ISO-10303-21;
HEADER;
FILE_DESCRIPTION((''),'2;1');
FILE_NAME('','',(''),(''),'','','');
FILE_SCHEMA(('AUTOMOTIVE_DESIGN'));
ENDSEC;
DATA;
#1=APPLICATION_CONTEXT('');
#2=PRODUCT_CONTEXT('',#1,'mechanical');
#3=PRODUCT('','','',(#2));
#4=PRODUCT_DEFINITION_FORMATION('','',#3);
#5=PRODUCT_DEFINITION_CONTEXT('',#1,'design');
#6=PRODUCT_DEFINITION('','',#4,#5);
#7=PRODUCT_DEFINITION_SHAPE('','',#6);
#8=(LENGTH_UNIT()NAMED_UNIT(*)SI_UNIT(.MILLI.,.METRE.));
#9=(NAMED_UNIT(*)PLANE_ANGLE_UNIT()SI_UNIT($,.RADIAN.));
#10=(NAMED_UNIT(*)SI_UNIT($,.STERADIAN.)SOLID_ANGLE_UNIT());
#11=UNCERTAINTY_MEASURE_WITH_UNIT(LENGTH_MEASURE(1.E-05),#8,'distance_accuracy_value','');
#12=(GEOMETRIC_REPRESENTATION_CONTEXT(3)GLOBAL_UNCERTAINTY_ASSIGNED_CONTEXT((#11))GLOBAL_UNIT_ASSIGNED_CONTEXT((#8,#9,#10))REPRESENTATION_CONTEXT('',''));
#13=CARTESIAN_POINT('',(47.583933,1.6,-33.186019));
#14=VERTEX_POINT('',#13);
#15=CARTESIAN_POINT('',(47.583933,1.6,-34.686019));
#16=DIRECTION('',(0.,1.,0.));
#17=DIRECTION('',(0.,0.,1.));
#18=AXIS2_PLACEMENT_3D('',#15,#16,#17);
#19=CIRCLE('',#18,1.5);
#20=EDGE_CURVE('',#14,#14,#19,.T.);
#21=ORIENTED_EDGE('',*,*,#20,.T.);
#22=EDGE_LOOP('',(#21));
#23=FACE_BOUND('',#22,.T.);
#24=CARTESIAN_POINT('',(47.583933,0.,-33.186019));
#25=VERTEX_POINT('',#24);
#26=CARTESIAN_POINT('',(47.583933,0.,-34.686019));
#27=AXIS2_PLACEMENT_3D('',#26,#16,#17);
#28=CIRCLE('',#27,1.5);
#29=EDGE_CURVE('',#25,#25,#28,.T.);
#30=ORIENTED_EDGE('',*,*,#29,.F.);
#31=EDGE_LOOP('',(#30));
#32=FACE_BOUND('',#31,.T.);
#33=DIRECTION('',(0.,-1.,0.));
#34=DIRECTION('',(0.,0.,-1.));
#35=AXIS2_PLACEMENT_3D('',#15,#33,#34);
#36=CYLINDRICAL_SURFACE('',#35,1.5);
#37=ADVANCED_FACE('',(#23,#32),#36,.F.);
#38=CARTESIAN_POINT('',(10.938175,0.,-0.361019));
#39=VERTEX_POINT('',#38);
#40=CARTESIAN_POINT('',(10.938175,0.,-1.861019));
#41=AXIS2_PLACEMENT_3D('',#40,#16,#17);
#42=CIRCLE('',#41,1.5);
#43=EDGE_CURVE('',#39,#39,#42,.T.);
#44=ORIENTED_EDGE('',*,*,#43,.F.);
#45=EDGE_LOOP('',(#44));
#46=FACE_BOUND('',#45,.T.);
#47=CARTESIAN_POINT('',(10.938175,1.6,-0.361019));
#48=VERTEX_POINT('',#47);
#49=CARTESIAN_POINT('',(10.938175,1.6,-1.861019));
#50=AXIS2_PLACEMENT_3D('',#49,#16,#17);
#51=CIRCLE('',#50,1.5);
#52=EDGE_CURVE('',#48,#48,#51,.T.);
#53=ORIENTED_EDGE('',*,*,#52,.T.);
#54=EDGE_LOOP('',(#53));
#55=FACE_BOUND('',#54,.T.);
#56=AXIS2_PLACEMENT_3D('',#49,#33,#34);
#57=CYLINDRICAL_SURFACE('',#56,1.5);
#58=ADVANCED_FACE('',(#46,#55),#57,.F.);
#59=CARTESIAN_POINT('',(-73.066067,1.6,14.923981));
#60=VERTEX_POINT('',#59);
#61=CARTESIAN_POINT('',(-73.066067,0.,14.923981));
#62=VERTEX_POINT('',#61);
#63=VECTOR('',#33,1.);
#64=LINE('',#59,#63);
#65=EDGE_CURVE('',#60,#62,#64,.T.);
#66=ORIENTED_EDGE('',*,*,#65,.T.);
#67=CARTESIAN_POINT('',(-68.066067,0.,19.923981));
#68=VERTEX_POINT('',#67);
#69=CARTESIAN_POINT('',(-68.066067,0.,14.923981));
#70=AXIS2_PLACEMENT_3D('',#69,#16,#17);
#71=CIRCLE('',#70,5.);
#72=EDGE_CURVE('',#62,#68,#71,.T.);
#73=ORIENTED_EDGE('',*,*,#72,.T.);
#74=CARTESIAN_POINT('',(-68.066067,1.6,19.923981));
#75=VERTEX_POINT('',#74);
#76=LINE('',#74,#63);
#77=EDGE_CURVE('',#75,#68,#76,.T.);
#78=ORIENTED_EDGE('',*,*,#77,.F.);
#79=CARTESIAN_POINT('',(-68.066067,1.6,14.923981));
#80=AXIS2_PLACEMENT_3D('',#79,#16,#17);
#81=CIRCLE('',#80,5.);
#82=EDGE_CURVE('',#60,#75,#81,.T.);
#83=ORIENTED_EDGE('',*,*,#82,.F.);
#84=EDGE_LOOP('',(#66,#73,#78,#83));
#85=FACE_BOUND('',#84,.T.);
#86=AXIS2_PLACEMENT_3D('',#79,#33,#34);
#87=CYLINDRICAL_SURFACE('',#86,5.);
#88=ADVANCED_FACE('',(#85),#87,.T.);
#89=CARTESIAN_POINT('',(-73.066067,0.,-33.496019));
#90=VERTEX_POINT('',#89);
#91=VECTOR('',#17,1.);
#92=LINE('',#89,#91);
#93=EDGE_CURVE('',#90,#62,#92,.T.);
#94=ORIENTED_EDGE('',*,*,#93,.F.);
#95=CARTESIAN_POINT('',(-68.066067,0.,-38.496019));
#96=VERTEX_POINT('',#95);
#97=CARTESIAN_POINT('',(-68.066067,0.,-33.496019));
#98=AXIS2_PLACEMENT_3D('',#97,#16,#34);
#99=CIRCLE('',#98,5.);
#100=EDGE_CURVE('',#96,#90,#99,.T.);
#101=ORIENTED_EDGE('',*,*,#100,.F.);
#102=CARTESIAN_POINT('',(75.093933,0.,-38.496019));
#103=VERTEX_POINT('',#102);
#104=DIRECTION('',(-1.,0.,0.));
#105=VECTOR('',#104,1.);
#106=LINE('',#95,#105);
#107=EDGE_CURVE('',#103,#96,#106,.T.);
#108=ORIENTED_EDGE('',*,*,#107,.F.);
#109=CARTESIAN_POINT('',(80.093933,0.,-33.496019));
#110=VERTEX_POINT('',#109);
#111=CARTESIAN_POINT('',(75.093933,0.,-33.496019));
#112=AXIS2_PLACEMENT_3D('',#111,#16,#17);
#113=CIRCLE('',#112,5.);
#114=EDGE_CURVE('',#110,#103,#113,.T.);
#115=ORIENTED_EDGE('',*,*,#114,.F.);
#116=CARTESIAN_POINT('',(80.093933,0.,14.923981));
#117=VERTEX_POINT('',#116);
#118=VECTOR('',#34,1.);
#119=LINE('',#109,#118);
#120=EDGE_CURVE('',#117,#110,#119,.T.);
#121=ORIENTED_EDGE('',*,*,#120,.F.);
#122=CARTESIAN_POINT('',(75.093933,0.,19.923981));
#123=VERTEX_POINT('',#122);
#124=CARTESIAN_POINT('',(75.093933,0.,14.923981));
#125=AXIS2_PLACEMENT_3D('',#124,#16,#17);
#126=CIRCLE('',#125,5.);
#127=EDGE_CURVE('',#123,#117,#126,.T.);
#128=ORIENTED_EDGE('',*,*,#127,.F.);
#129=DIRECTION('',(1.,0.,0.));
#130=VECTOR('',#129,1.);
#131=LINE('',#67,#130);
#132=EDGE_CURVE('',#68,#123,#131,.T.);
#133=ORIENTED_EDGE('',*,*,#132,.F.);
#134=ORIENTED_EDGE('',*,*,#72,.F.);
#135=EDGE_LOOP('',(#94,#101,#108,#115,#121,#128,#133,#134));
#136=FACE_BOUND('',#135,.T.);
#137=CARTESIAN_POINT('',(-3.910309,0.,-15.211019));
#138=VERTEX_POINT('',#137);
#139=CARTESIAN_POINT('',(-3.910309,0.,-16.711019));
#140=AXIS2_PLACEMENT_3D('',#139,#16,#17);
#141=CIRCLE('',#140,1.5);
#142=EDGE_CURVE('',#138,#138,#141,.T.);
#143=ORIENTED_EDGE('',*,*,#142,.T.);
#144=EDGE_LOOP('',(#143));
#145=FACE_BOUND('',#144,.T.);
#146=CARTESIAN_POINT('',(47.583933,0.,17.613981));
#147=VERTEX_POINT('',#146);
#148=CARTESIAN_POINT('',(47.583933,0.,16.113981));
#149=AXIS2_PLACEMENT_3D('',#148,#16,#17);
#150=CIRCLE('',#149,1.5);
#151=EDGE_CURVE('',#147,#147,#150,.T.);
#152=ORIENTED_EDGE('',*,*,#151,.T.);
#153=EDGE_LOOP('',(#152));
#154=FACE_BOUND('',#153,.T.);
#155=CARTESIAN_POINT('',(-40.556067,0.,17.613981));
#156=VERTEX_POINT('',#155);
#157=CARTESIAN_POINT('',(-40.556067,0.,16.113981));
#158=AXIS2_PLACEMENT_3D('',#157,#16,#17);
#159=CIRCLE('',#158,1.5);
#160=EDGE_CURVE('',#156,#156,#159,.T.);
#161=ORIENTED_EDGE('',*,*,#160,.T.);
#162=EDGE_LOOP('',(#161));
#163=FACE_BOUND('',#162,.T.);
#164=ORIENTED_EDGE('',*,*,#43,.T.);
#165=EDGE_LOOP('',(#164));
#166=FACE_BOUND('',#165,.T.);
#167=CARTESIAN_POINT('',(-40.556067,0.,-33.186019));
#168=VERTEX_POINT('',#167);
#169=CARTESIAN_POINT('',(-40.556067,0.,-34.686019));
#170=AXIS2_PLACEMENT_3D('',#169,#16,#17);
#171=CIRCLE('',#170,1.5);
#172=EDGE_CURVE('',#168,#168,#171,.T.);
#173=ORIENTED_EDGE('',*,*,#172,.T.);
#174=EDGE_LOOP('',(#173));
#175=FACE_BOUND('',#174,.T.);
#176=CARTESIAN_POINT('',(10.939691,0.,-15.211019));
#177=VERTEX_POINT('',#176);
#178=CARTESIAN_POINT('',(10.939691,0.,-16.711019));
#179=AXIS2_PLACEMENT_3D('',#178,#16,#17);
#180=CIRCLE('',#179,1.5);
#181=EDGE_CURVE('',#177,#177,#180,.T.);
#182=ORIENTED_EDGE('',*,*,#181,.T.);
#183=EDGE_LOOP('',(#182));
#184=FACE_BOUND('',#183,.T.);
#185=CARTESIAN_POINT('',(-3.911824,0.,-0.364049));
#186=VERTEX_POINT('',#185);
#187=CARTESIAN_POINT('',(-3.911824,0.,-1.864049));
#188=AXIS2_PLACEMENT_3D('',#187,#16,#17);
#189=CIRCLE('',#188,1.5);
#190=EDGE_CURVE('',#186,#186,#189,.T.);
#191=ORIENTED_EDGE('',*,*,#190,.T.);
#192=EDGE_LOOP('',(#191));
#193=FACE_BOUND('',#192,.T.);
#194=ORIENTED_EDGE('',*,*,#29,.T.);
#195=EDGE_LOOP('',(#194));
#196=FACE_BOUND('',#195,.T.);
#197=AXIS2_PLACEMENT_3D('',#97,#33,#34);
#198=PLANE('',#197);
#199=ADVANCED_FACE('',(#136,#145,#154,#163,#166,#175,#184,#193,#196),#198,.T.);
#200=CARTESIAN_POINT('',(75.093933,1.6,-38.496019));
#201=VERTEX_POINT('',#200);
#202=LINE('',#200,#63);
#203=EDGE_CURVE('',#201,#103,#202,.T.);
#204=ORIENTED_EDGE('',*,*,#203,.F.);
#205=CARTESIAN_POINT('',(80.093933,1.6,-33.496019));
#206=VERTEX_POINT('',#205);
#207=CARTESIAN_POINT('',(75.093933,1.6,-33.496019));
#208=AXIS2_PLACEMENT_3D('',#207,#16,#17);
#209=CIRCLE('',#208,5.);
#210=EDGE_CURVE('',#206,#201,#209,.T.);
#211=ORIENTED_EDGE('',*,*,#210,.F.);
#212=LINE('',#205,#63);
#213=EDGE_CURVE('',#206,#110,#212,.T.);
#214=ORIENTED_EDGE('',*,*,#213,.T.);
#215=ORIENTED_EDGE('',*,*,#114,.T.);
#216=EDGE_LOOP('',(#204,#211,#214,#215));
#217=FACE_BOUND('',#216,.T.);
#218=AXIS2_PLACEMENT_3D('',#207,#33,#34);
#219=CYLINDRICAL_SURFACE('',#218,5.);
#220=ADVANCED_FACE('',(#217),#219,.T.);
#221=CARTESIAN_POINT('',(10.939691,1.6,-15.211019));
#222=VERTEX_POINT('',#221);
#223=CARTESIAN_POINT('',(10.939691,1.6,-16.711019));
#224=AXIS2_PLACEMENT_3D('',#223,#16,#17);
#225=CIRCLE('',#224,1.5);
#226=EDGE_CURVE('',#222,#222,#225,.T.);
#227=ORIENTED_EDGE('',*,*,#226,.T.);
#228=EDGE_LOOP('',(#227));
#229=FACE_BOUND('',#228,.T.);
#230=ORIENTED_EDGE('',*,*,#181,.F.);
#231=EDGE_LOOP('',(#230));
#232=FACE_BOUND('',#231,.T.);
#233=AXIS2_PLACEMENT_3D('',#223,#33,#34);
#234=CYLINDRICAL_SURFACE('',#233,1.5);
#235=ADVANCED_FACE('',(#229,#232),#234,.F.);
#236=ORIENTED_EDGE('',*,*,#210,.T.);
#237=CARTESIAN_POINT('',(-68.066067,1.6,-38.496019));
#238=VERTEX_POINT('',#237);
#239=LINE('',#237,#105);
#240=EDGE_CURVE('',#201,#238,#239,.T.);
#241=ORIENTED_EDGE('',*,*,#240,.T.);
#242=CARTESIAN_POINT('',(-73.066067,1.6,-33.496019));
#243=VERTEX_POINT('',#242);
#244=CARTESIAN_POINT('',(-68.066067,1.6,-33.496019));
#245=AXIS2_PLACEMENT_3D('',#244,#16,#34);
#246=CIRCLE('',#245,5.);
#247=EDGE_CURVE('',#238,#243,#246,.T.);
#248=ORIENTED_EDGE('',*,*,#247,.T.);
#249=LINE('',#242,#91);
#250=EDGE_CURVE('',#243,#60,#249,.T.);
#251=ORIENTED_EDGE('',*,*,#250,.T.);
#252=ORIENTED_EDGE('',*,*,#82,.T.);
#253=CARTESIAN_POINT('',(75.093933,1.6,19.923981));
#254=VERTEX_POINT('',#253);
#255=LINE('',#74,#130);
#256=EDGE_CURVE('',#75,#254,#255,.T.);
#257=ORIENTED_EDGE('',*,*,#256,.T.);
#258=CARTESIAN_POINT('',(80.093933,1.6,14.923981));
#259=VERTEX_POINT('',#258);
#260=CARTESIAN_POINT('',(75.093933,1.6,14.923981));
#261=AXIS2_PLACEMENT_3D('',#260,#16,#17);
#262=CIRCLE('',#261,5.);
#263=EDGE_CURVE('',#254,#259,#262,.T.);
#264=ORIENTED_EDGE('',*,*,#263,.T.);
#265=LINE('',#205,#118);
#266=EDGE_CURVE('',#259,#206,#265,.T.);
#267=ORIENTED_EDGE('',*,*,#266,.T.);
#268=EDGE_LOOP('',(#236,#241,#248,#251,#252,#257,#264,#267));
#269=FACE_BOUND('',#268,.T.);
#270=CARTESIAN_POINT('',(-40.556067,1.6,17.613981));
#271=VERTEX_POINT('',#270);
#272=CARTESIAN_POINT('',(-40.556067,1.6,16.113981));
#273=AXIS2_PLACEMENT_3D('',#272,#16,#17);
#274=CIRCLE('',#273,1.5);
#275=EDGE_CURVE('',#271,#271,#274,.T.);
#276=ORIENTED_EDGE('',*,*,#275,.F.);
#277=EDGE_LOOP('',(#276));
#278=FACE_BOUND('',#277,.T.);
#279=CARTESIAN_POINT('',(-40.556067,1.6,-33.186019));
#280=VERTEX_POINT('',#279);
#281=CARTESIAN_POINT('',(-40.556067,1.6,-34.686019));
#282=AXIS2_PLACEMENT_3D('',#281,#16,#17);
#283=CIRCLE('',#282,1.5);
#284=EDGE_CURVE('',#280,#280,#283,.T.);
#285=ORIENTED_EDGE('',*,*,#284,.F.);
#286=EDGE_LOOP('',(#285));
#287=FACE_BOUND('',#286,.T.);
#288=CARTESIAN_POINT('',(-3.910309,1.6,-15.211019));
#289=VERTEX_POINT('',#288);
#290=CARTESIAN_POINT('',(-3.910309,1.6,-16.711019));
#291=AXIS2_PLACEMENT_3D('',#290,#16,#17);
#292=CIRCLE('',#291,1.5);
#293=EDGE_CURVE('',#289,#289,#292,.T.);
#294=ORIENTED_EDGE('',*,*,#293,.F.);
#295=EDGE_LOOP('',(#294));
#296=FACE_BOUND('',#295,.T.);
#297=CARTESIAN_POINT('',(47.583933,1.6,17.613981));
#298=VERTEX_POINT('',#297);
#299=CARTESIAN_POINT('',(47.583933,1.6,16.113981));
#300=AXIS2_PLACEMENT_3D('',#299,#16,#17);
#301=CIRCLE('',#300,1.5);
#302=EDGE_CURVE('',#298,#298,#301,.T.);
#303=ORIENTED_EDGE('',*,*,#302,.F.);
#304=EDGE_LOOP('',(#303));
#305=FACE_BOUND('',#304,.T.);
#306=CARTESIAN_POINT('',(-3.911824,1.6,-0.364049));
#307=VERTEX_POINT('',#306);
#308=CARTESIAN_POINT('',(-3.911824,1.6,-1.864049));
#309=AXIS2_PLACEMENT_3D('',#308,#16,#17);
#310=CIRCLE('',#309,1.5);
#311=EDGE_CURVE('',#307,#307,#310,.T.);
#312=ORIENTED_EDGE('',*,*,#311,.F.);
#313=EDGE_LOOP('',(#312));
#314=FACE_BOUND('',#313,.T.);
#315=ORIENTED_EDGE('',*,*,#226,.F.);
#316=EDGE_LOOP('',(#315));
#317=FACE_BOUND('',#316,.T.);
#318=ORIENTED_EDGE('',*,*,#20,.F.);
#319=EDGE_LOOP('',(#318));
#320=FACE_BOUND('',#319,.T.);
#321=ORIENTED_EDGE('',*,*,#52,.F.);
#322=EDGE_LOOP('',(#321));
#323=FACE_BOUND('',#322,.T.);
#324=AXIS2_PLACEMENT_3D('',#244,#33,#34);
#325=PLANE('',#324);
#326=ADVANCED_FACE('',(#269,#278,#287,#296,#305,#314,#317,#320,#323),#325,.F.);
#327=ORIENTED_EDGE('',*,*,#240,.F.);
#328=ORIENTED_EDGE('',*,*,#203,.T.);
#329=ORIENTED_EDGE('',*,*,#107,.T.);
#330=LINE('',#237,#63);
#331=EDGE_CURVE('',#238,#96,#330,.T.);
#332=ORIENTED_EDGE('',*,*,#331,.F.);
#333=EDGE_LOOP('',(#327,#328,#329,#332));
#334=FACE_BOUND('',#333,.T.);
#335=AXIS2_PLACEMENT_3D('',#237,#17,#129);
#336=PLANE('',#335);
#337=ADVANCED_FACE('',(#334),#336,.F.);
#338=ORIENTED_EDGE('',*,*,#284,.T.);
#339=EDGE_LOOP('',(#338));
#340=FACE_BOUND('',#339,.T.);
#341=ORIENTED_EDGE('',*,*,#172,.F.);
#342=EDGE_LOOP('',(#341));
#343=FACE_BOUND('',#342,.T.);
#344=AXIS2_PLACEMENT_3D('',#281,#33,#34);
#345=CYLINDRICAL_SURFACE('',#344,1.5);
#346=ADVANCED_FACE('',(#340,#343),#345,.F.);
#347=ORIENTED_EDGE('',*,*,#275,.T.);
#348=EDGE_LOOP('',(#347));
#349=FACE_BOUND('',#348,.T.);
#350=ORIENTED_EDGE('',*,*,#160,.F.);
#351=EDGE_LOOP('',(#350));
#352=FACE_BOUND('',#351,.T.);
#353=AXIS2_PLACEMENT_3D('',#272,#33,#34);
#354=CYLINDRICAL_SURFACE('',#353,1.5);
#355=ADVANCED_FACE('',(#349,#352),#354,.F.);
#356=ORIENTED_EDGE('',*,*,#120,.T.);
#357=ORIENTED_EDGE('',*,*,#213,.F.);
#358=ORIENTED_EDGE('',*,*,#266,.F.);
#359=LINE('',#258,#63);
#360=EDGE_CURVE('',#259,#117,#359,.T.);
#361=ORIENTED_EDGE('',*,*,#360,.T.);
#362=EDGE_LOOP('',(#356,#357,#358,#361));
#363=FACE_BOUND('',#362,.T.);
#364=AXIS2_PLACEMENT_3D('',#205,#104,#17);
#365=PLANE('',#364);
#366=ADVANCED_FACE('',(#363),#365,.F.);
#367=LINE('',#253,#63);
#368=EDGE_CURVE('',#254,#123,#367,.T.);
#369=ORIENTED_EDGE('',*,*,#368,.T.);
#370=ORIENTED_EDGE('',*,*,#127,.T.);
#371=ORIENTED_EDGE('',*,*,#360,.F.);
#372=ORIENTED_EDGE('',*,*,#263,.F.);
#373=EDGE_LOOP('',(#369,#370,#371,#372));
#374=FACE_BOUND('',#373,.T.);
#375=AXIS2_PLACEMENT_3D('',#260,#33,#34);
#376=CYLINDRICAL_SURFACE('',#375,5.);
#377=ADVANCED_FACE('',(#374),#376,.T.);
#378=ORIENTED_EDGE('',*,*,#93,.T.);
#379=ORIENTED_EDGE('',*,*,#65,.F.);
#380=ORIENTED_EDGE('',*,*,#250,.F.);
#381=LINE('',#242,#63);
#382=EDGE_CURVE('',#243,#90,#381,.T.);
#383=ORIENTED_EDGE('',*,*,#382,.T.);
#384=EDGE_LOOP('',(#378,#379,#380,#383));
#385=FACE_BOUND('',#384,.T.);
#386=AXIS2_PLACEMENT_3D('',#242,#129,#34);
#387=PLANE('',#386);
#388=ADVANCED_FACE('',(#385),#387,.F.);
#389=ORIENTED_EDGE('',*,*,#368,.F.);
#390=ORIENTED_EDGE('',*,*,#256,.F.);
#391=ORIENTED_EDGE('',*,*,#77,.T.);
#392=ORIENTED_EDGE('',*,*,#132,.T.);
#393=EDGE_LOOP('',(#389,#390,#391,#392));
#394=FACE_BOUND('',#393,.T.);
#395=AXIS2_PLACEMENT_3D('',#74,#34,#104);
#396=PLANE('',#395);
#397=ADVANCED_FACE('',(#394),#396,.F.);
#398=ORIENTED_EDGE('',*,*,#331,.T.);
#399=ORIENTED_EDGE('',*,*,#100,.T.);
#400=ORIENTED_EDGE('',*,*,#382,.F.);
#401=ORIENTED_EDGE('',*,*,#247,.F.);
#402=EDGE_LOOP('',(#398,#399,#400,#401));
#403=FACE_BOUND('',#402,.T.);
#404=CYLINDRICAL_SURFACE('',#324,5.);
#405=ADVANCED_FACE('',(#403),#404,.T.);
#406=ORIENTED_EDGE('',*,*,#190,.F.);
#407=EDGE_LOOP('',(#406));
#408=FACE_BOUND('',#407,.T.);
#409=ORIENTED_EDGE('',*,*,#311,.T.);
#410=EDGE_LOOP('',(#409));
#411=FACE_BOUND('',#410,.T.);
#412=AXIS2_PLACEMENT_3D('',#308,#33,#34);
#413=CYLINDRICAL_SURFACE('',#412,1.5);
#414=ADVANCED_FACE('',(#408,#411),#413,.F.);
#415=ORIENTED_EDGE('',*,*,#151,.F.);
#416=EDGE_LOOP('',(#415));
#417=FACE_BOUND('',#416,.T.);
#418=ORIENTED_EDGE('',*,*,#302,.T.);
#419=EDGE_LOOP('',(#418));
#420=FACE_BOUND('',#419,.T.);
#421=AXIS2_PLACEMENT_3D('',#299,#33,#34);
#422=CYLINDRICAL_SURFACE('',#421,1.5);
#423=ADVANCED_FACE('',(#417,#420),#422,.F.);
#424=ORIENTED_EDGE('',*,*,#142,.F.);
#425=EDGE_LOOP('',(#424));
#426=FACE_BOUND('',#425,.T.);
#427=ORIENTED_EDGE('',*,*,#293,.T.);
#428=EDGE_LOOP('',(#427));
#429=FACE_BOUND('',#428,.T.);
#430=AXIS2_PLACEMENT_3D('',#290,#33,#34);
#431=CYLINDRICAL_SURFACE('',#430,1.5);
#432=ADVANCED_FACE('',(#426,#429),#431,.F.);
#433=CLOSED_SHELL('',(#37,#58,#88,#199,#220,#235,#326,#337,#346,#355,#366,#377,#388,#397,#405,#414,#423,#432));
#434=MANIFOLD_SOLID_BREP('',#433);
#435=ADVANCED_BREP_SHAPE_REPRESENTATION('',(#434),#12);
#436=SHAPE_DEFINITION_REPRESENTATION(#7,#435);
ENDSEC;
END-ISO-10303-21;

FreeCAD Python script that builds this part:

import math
import FreeCAD as App
import Part
import Sketcher

V = App.Vector
Q = App.Units.Quantity

doc = App.newDocument("Part")
body = doc.addObject("PartDesign::Body", "Body")

# Sketch on XZ plane
sketch1 = body.newObject("Sketcher::SketchObject", "Sketch")
sketch1.AttachmentSupport = (doc.getObject("XZ_Plane"), [""])
sketch1.MapMode = "FlatFace"
sketch1.addGeometry([
    Part.LineSegment(V(75.1, -38.5, 0), V(-68.1, -38.5, 0)),  # 0
    Part.ArcOfCircle(Part.Circle(V(-68.1, -33.5, 0), V(0, 0, 1), 5), math.radians(180), math.radians(270)),  # 1
    Part.LineSegment(V(-73.1, -33.5, 0), V(-73.1, 14.9, 0)),  # 2
    Part.ArcOfCircle(Part.Circle(V(-68.1, 14.9, 0), V(0, 0, 1), 5), math.radians(90), math.radians(180)),  # 3
    Part.LineSegment(V(-68.1, 19.9, 0), V(75.1, 19.9, 0)),  # 4
    Part.ArcOfCircle(Part.Circle(V(75.1, 14.9, 0), V(0, 0, 1), 5), math.radians(0), math.radians(90)),  # 5
    Part.LineSegment(V(80.1, 14.9, 0), V(80.1, -33.5, 0)),  # 6
    Part.ArcOfCircle(Part.Circle(V(75.1, -33.5, 0), V(0, 0, 1), 5), math.radians(-90), math.radians(0)),  # 7
    Part.Circle(V(47.6, 16.1, 0), V(0, 0, 1), 1.5),  # 8
    Part.Circle(V(10.9, -1.9, 0), V(0, 0, 1), 1.5),  # 9
    Part.Circle(V(-40.6, 16.1, 0), V(0, 0, 1), 1.5),  # 10
    Part.Circle(V(-3.9, -1.9, 0), V(0, 0, 1), 1.5),  # 11
    Part.Circle(V(10.9, -16.7, 0), V(0, 0, 1), 1.5),  # 12
    Part.Circle(V(47.6, -34.7, 0), V(0, 0, 1), 1.5),  # 13
    Part.Circle(V(-3.9, -16.7, 0), V(0, 0, 1), 1.5),  # 14
    Part.Circle(V(-40.6, -34.7, 0), V(0, 0, 1), 1.5),  # 15
], False)
sketch1.addConstraint([
    Sketcher.Constraint("Tangent", 0, 2, 1, 2),
    Sketcher.Constraint("Tangent", 1, 1, 2, 1),
    Sketcher.Constraint("Tangent", 2, 2, 3, 2),
    Sketcher.Constraint("Tangent", 3, 1, 4, 1),
    Sketcher.Constraint("Tangent", 4, 2, 5, 2),
    Sketcher.Constraint("Tangent", 5, 1, 6, 1),
    Sketcher.Constraint("Tangent", 6, 2, 7, 2),
    Sketcher.Constraint("Tangent", 7, 1, 0, 1),
    Sketcher.Constraint("Horizontal", 0),
    Sketcher.Constraint("Vertical", 2),
    Sketcher.Constraint("Horizontal", 4),
    Sketcher.Constraint("Vertical", 6),
    Sketcher.Constraint("Equal", 1, 3),
    Sketcher.Constraint("Equal", 3, 5),
    Sketcher.Constraint("Equal", 5, 7),
    Sketcher.Constraint("Equal", 8, 9),
    Sketcher.Constraint("Equal", 9, 10),
    Sketcher.Constraint("Equal", 10, 11),
    Sketcher.Constraint("Equal", 11, 12),
    Sketcher.Constraint("Equal", 12, 13),
    Sketcher.Constraint("Equal", 13, 14),
    Sketcher.Constraint("Equal", 14, 15),
    Sketcher.Constraint("Horizontal", 8, 3, 10, 3),
    Sketcher.Constraint("Horizontal", 12, 3, 14, 3),
    Sketcher.Constraint("Horizontal", 13, 3, 15, 3),
    Sketcher.Constraint("Vertical", 8, 3, 13, 3),
    Sketcher.Constraint("Vertical", 10, 3, 15, 3),
    Sketcher.Constraint("Diameter", 8, Q("3 mm")),
    Sketcher.Constraint("Radius", 1, Q("5 mm")),
    Sketcher.Constraint("DistanceX", 0, 2, 0, 1, Q("143.16 mm")),
    Sketcher.Constraint("DistanceY", 2, 1, 2, 2, Q("48.42 mm")),
    Sketcher.Constraint("DistanceY", 13, 3, 8, 3, Q("50.8 mm")),
    Sketcher.Constraint("DistanceX", 8, 3, 5, 3, Q("27.51 mm")),
    Sketcher.Constraint("DistanceY", 5, 3, 8, 3, Q("1.19 mm")),
    Sketcher.Constraint("DistanceX", 3, 3, 10, 3, Q("27.51 mm")),
    Sketcher.Constraint("DistanceX", 11, 3, 9, 3, Q("14.85 mm")),
    Sketcher.Constraint("DistanceY", 12, 3, 9, 3, Q("14.85 mm")),
    Sketcher.Constraint("DistanceX", 14, 3, 12, 3, Q("14.85 mm")),
    Sketcher.Constraint("DistanceY", 9, 3, 8, 3, Q("17.975 mm")),
    Sketcher.Constraint("DistanceY", 1, 3, -1, 1, Q("33.496019 mm")),
    Sketcher.Constraint("DistanceY", 11, 3, -1, 1, Q("1.864049 mm")),
    Sketcher.Constraint("DistanceX", -1, 1, 12, 3, Q("10.939691 mm")),
    Sketcher.Constraint("DistanceX", 1, 3, -1, 1, Q("68.066067 mm")),
    Sketcher.Constraint("DistanceX", -1, 1, 9, 3, Q("10.938175 mm")),
])
pad1 = body.newObject("PartDesign::Pad", "Pad")
pad1.Profile = sketch1
pad1.Length = 1.6
pad1.Reversed = True

doc.recompute()
